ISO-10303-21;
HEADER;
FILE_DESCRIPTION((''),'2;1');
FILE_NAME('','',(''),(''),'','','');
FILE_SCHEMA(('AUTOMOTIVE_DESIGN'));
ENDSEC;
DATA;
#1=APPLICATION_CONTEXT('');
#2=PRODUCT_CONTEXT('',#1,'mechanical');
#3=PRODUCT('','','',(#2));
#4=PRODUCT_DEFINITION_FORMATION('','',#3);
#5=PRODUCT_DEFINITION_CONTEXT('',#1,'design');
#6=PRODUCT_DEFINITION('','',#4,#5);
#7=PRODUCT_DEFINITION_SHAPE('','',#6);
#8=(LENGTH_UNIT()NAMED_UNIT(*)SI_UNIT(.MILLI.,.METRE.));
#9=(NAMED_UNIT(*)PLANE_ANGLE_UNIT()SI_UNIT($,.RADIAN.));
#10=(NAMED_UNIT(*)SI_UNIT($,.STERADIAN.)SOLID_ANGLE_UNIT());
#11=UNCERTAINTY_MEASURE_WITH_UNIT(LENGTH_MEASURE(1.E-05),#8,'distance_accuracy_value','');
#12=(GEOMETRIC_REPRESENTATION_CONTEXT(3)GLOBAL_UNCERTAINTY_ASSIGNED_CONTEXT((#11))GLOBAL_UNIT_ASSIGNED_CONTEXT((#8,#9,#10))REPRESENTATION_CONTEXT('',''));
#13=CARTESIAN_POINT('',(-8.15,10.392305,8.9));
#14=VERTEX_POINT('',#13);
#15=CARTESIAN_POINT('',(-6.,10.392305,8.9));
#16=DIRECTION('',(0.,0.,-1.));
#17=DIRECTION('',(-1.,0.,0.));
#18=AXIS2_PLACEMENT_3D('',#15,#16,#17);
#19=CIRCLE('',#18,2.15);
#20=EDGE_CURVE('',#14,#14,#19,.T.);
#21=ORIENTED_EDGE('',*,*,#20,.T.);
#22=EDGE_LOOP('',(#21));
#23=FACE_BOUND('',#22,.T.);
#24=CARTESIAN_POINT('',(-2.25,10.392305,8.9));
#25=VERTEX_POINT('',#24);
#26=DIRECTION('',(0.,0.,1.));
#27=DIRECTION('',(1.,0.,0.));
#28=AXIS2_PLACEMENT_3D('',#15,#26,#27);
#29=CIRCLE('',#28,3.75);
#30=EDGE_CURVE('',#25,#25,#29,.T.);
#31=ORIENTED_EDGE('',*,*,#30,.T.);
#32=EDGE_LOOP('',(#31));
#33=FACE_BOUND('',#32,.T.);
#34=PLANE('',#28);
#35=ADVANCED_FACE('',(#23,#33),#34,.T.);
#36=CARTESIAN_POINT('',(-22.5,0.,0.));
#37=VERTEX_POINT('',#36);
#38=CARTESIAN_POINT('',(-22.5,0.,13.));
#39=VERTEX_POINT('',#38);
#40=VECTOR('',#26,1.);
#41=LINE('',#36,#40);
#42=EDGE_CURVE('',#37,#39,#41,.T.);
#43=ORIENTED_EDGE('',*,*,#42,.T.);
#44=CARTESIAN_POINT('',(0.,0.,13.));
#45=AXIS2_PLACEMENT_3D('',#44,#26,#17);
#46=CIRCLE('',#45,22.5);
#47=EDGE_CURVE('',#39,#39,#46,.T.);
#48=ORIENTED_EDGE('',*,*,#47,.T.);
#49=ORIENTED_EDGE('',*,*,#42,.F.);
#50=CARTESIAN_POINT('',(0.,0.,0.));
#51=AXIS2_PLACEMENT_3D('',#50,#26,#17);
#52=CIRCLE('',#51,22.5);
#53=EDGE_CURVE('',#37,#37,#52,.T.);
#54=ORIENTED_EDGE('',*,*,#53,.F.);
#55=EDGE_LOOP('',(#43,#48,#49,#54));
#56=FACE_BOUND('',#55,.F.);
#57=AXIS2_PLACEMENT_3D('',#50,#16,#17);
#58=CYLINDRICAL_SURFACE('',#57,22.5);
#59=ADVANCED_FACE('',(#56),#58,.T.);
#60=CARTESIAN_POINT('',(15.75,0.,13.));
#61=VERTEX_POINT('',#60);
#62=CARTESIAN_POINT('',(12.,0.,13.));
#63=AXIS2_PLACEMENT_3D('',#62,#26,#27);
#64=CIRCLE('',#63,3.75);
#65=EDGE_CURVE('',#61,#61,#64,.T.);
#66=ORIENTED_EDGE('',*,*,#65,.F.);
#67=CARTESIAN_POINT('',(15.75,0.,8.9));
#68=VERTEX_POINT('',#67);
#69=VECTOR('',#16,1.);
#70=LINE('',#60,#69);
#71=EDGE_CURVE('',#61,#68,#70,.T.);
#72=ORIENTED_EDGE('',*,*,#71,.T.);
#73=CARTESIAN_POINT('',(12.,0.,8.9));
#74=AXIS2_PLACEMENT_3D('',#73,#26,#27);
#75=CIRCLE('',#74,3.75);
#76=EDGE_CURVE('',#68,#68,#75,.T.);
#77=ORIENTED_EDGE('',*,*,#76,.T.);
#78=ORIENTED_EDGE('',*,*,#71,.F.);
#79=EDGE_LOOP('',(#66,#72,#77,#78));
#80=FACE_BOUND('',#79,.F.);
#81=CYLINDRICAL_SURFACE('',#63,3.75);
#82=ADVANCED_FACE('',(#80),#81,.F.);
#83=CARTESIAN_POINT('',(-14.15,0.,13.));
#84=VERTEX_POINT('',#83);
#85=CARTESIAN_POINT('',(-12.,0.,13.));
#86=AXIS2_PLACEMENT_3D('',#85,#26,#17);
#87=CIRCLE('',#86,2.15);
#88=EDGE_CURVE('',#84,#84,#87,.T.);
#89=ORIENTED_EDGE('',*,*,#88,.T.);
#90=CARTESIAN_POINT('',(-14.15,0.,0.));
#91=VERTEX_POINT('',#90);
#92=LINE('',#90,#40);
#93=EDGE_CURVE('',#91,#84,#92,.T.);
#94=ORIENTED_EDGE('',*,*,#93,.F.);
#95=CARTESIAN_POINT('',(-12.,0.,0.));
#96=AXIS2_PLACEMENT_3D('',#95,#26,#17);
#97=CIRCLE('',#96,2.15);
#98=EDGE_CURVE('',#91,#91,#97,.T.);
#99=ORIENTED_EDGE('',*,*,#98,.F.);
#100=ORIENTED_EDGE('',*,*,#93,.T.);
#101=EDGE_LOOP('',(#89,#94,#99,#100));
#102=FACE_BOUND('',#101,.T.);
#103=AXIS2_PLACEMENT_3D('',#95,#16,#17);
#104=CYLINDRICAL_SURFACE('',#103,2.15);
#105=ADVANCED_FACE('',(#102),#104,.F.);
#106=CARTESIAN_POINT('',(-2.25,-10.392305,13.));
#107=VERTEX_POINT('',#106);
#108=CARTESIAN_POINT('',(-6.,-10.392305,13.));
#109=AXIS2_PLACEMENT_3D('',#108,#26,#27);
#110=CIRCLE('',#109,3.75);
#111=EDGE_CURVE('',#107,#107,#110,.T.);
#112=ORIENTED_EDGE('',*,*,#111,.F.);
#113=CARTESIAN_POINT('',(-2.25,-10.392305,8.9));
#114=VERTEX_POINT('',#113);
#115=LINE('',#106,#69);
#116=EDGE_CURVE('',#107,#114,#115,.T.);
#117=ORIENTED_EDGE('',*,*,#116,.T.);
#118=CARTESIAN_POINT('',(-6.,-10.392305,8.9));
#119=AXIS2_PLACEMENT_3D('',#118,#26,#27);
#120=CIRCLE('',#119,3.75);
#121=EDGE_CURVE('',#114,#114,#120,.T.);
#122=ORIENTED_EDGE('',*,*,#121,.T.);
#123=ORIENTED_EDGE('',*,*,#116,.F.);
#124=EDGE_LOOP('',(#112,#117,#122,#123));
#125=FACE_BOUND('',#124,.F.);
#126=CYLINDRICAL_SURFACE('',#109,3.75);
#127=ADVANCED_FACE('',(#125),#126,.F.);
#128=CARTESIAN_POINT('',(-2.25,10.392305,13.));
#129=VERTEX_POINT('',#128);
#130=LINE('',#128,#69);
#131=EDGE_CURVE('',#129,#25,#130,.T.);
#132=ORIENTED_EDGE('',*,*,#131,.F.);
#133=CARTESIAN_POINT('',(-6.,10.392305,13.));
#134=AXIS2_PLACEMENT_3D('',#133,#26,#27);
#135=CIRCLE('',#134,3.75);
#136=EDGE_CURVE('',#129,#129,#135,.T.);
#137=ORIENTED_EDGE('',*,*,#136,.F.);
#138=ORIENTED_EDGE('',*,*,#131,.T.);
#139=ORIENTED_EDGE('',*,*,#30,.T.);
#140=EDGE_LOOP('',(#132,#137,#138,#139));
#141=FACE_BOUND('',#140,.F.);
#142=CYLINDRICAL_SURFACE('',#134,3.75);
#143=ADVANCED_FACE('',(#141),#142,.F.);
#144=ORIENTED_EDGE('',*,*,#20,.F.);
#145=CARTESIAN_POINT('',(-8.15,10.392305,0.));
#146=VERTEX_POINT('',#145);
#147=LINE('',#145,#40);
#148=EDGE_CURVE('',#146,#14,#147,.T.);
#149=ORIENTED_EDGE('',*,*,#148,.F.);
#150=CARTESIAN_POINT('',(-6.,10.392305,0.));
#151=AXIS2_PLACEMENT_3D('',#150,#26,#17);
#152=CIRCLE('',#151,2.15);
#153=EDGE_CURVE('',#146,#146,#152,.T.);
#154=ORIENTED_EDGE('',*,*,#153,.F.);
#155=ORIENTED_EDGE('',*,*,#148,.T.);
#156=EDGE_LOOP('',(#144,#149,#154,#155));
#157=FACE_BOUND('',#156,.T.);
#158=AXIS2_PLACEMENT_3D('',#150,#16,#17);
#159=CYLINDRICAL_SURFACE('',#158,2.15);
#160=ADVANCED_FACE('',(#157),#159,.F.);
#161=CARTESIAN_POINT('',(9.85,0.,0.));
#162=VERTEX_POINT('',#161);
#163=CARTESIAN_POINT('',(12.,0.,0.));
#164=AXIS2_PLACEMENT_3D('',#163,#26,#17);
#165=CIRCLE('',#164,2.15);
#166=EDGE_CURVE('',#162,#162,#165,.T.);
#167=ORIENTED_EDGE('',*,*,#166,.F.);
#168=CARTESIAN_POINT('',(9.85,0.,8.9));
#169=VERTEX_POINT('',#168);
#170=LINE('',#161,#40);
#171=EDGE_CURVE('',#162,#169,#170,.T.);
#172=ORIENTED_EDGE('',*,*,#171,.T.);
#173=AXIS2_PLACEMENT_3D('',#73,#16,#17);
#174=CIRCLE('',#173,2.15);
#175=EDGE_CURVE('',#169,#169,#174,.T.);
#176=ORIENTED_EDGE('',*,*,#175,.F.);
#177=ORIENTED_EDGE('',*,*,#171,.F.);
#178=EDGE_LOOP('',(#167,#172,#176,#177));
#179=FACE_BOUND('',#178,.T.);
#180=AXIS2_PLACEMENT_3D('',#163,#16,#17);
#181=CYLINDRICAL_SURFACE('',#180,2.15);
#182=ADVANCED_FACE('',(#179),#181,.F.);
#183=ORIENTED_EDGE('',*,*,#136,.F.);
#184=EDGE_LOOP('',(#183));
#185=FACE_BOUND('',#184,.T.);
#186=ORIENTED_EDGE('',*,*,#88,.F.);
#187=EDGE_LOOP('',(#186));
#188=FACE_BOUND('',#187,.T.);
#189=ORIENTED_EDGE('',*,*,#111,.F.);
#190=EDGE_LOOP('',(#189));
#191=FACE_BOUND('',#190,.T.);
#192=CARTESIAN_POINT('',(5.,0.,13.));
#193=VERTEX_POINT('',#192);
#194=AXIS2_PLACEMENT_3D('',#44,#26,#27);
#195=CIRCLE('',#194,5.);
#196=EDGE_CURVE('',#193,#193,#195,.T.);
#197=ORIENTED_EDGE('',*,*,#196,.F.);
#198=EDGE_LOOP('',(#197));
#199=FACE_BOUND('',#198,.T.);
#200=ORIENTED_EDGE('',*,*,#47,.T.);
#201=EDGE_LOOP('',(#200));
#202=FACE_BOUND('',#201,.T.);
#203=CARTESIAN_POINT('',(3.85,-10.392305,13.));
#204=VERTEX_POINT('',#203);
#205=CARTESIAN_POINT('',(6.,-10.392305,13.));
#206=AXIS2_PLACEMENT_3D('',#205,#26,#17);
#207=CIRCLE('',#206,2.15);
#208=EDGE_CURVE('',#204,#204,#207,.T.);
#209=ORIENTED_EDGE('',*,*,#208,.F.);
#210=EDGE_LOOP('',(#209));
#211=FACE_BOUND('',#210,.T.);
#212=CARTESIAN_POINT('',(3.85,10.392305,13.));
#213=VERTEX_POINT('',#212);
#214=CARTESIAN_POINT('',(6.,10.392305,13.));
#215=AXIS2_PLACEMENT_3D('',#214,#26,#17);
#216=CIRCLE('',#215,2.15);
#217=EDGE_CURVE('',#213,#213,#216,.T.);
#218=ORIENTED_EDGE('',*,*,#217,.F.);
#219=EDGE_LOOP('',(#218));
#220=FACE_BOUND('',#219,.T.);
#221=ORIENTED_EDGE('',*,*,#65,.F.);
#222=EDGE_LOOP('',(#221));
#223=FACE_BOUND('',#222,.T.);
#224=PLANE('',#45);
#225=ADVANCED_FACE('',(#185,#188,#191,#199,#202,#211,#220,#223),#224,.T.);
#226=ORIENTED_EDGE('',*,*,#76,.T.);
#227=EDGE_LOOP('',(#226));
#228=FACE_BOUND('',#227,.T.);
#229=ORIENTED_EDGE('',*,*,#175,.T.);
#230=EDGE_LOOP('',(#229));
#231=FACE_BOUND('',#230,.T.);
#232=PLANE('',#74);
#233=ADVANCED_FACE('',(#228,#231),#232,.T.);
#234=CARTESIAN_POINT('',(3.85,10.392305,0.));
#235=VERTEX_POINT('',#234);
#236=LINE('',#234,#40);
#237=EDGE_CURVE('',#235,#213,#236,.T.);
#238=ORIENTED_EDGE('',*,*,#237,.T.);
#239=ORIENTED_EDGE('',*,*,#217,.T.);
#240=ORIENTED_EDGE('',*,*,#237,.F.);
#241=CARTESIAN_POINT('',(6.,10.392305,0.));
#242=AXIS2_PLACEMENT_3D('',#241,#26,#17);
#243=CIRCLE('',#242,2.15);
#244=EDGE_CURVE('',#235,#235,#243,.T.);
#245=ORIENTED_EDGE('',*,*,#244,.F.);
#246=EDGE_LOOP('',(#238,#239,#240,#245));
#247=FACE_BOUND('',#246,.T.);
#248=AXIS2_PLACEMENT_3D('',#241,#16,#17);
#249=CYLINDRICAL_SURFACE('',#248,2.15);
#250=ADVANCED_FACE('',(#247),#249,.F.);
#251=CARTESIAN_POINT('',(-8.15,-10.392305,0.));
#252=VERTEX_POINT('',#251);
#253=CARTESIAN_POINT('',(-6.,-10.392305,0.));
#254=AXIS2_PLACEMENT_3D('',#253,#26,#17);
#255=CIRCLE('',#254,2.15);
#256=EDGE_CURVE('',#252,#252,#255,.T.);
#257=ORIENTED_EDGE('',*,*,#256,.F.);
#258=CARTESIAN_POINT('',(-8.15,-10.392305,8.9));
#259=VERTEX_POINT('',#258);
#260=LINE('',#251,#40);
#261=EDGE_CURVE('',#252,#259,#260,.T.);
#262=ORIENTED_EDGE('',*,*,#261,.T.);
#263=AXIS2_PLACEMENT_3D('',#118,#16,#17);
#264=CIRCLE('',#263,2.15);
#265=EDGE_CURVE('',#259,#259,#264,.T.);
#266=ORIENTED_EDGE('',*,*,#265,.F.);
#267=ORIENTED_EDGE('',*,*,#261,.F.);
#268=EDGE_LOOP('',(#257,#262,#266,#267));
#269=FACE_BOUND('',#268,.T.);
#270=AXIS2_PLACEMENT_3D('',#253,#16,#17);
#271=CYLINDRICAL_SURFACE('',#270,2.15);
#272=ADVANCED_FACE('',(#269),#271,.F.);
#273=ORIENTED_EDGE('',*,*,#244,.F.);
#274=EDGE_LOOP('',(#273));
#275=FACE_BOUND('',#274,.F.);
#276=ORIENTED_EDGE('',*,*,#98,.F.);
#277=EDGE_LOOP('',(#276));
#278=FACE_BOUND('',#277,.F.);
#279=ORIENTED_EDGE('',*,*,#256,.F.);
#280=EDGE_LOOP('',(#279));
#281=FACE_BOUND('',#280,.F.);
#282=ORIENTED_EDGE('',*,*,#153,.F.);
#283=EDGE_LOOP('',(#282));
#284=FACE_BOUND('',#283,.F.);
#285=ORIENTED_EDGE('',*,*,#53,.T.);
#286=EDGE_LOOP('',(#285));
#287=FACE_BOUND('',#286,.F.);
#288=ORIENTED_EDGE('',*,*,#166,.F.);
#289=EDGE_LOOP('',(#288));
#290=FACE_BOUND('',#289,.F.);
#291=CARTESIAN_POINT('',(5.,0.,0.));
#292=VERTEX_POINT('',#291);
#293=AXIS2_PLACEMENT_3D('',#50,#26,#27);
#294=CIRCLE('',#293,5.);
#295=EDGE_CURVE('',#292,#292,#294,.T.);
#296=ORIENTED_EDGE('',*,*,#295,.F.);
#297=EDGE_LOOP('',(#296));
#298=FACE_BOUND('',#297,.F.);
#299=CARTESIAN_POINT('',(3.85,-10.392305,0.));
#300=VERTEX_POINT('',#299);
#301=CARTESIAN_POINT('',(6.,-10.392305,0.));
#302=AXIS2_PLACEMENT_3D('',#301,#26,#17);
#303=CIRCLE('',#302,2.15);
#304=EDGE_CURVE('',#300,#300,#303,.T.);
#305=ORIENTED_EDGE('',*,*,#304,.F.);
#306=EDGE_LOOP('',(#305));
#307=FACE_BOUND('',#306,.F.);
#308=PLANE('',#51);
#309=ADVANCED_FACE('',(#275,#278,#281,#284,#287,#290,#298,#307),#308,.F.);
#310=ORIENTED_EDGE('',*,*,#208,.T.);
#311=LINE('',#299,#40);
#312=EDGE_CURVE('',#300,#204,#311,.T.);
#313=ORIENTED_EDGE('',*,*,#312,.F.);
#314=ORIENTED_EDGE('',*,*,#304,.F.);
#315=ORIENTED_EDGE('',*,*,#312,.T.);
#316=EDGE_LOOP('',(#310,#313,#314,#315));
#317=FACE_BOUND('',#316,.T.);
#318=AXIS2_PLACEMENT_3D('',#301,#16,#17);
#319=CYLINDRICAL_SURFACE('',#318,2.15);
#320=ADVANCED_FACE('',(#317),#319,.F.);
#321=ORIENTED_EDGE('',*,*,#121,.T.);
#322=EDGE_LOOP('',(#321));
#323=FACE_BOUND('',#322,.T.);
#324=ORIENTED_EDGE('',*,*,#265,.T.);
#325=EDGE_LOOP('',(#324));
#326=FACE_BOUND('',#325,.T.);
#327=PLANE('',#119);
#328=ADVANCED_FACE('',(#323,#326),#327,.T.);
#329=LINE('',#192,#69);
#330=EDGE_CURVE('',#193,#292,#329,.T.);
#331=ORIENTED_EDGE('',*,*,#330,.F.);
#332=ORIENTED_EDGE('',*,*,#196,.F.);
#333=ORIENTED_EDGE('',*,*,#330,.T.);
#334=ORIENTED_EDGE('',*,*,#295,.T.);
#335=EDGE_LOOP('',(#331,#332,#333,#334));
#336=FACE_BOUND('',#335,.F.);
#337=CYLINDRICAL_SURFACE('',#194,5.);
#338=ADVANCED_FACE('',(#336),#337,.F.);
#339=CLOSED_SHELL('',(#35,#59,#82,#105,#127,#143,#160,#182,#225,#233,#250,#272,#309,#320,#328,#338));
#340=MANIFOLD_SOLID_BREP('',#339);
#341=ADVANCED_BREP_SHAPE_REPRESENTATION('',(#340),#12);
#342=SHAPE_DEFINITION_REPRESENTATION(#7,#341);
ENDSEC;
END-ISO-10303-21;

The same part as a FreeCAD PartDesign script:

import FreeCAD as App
import Part
import Sketcher

V = App.Vector

doc = App.newDocument("Part")
body = doc.addObject("PartDesign::Body", "Body")

# Sketch on XY plane
sketch1 = body.newObject("Sketcher::SketchObject", "Sketch")
sketch1.AttachmentSupport = (doc.getObject("XY_Plane"), [""])
sketch1.MapMode = "FlatFace"
sketch1.addGeometry(Part.Circle(V(0, 0, 0), V(0, 0, 1), 22.5), False)
sketch1.addGeometry(Part.Circle(V(6, 10.4, 0), V(0, 0, 1), 2.1), False)
sketch1.addGeometry(Part.Circle(V(12, 0, 0), V(0, 0, 1), 2.1), False)
sketch1.addGeometry(Part.Circle(V(-6, 10.4, 0), V(0, 0, 1), 2.1), False)
sketch1.addGeometry(Part.Circle(V(6, -10.4, 0), V(0, 0, 1), 2.1), False)
sketch1.addGeometry(Part.Circle(V(-12, 0, 0), V(0, 0, 1), 2.1), False)
sketch1.addGeometry(Part.Circle(V(-6, -10.4, 0), V(0, 0, 1), 2.1), False)
sketch1.addConstraint(Sketcher.Constraint("Coincident", 0, 3, -1, 1))
sketch1.addConstraint(Sketcher.Constraint("Equal", 1, 2))
sketch1.addConstraint(Sketcher.Constraint("Equal", 2, 3))
sketch1.addConstraint(Sketcher.Constraint("Equal", 3, 4))
sketch1.addConstraint(Sketcher.Constraint("Equal", 4, 5))
sketch1.addConstraint(Sketcher.Constraint("Equal", 5, 6))
sketch1.addConstraint(Sketcher.Constraint("Symmetric", 3, 3, 4, 3, -1, 1))
sketch1.addConstraint(Sketcher.Constraint("Symmetric", 2, 3, 5, 3, -1, 1))
sketch1.addConstraint(Sketcher.Constraint("Symmetric", 1, 3, 6, 3, -1, 1))
sketch1.addConstraint(Sketcher.Constraint("Symmetric", 1, 3, 3, 3, -2))
sketch1.addConstraint(Sketcher.Constraint("PointOnObject", 2, 3, -1))
sketch1.addConstraint(Sketcher.Constraint("Diameter", 0, 45.0))
sketch1.addConstraint(Sketcher.Constraint("Diameter", 1, 4.3))
sketch1.addConstraint(Sketcher.Constraint("DistanceX", -1, 1, 1, 3, 6.0))
sketch1.addConstraint(Sketcher.Constraint("DistanceX", -1, 1, 2, 3, 12.0))
sketch1.addConstraint(Sketcher.Constraint("DistanceY", 4, 3, 1, 3, 20.78461))
pad1 = body.newObject("PartDesign::Pad", "Pad")
pad1.Profile = sketch1
pad1.Length = 13

# Sketch on XY plane
sketch2 = body.newObject("Sketcher::SketchObject", "Sketch001")
sketch2.AttachmentSupport = (doc.getObject("XY_Plane"), [""])
sketch2.MapMode = "FlatFace"
sketch2.AttachmentOffset = App.Placement(V(0, 0, 13), App.Rotation())
sketch2.addGeometry(Part.Circle(V(-6, 10.4, 0), V(0, 0, 1), 3.8), False)
sketch2.addGeometry(Part.Circle(V(-6, -10.4, 0), V(0, 0, 1), 3.8), False)
sketch2.addGeometry(Part.Circle(V(12, 0, 0), V(0, 0, 1), 3.8), False)
sketch2.addConstraint(Sketcher.Constraint("Equal", 0, 1))
sketch2.addConstraint(Sketcher.Constraint("Equal", 1, 2))
sketch2.addConstraint(Sketcher.Constraint("Symmetric", 0, 3, 1, 3, -1))
sketch2.addConstraint(Sketcher.Constraint("PointOnObject", 2, 3, -1))
sketch2.addConstraint(Sketcher.Constraint("Diameter", 0, 7.5))
sketch2.addConstraint(Sketcher.Constraint("DistanceX", 0, 3, -1, 1, 6.0))
sketch2.addConstraint(Sketcher.Constraint("DistanceX", -1, 1, 2, 3, 12.0))
sketch2.addConstraint(Sketcher.Constraint("DistanceY", 1, 3, 0, 3, 20.78461))
pocket1 = body.newObject("PartDesign::Pocket", "Pocket")
pocket1.Profile = sketch2
pocket1.Length = 4.1

# Sketch on XY plane
sketch3 = body.newObject("Sketcher::SketchObject", "Sketch002")
sketch3.AttachmentSupport = (doc.getObject("XY_Plane"), [""])
sketch3.MapMode = "FlatFace"
sketch3.AttachmentOffset = App.Placement(V(0, 0, 13), App.Rotation())
sketch3.addGeometry(Part.Circle(V(0, 0, 0), V(0, 0, 1), 5), False)
sketch3.addConstraint(Sketcher.Constraint("Coincident", 0, 3, -1, 1))
sketch3.addConstraint(Sketcher.Constraint("Diameter", 0, 10.0))
pocket2 = body.newObject("PartDesign::Pocket", "Pocket001")
pocket2.Profile = sketch3
pocket2.Type = "ThroughAll"

doc.recompute()
